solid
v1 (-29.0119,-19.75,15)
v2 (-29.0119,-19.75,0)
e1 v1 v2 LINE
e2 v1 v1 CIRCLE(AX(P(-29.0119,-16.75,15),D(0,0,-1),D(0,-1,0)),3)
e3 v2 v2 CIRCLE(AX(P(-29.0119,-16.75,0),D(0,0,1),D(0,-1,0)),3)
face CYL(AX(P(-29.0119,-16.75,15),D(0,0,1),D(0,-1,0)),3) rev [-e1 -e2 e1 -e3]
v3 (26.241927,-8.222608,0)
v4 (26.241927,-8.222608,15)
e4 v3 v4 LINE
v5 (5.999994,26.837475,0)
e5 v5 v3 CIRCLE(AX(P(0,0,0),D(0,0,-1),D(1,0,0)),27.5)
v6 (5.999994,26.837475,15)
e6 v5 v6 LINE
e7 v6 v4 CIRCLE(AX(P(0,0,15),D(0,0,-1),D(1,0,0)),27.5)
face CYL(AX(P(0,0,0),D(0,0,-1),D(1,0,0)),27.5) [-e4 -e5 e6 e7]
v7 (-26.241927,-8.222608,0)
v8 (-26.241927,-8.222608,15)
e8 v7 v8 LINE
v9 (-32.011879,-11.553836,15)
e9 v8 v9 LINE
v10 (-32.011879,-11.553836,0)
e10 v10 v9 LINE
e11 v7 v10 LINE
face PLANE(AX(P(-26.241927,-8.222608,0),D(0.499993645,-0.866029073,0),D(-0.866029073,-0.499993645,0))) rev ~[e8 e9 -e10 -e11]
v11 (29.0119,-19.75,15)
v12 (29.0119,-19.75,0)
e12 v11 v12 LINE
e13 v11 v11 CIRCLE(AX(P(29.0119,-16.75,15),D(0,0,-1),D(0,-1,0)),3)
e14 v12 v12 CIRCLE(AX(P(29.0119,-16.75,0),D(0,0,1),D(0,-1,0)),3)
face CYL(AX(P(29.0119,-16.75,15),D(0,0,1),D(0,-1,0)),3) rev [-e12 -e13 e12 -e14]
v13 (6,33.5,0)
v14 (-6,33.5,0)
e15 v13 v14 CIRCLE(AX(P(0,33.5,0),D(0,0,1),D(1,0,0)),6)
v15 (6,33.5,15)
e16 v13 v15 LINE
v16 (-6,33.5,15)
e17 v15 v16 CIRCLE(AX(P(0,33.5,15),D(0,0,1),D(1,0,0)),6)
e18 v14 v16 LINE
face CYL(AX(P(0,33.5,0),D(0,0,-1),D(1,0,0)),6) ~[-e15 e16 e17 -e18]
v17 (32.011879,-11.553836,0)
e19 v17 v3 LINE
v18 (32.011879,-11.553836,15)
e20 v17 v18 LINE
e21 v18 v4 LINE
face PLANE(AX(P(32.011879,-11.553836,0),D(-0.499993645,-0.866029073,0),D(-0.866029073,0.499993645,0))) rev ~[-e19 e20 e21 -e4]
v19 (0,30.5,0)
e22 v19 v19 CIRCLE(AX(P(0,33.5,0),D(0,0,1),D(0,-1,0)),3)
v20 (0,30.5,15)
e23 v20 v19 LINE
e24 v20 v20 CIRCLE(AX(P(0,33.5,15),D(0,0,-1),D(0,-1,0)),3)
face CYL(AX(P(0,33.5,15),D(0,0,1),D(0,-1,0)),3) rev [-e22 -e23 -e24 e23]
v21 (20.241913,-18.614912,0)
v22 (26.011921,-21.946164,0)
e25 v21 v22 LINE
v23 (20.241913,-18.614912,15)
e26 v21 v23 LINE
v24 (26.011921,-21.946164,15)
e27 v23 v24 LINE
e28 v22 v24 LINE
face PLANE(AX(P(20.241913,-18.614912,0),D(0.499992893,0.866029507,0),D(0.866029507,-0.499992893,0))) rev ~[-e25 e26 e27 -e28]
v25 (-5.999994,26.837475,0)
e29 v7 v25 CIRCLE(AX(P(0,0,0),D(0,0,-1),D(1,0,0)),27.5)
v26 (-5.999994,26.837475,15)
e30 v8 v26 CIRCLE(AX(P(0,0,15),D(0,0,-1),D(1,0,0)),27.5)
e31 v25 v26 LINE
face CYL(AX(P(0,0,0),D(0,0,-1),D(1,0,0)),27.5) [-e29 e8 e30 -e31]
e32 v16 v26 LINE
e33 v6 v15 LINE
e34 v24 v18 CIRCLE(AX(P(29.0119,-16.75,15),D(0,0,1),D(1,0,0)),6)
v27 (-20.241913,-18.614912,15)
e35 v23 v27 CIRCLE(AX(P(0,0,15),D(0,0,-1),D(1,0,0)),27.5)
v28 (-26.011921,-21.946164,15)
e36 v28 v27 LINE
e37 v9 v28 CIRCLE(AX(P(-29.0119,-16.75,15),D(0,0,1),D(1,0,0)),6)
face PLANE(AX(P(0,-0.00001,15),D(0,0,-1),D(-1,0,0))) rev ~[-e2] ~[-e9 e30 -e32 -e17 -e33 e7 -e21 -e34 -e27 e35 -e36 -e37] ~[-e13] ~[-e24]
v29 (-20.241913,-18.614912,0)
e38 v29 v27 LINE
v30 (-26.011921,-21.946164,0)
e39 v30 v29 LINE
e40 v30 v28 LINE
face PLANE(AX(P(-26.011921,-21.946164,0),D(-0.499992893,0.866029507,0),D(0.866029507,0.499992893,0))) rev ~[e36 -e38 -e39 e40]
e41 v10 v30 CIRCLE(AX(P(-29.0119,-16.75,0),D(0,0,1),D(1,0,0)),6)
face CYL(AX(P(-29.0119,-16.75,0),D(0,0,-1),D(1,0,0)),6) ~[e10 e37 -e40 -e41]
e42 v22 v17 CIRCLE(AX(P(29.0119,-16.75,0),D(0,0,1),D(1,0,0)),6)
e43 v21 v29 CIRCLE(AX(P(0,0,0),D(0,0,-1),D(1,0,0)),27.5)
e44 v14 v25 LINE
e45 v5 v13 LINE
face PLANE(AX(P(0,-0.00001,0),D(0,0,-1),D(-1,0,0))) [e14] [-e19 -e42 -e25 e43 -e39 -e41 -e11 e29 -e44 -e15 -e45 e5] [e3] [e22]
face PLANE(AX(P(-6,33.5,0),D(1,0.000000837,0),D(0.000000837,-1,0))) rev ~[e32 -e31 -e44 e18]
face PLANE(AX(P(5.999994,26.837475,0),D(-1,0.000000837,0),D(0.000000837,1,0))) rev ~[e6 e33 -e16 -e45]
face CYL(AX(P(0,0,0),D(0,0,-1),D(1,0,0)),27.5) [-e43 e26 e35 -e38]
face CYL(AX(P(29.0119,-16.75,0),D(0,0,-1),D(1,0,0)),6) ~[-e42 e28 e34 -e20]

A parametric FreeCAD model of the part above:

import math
import FreeCAD as App
import Part
import Sketcher
Q = App.Units.Quantity

doc = App.newDocument("Part")
body = doc.addObject("PartDesign::Body", "Body")

sketch1 = body.newObject("Sketcher::SketchObject", "Sketch")
sketch1.AttachmentSupport = (doc.getObject("XY_Plane"), [""])
sketch1.MapMode = "FlatFace"
sketch1.addGeometry(Part.ArcOfCircle(Part.Circle(App.Vector(0, 0, 0), App.Vector(0, 0, 1), 28), math.radians(103), math.radians(197)), False)
sketch1.addGeometry(Part.LineSegment(App.Vector(-26, -8, 0), App.Vector(-32, -12, 0)), False)
sketch1.addGeometry(Part.ArcOfCircle(Part.Circle(App.Vector(-29, -17, 0), App.Vector(0, 0, 1), 6), math.radians(120), math.radians(300)), False)
sketch1.addGeometry(Part.LineSegment(App.Vector(-26, -22, 0), App.Vector(-20, -19, 0)), False)
sketch1.addGeometry(Part.ArcOfCircle(Part.Circle(App.Vector(0, 0, 0), App.Vector(0, 0, 1), 27), math.radians(-137), math.radians(-43)), False)
sketch1.addGeometry(Part.LineSegment(App.Vector(20, -19, 0), App.Vector(26, -22, 0)), False)
sketch1.addGeometry(Part.ArcOfCircle(Part.Circle(App.Vector(29, -17, 0), App.Vector(0, 0, 1), 6), math.radians(-120), math.radians(60)), False)
sketch1.addGeometry(Part.LineSegment(App.Vector(32, -12, 0), App.Vector(26, -8, 0)), False)
sketch1.addGeometry(Part.ArcOfCircle(Part.Circle(App.Vector(0, 0, 0), App.Vector(0, 0, 1), 27), math.radians(-17), math.radians(77)), False)
sketch1.addGeometry(Part.LineSegment(App.Vector(6, 27, 0), App.Vector(6, 34, 0)), False)
sketch1.addGeometry(Part.ArcOfCircle(Part.Circle(App.Vector(0, 34, 0), App.Vector(0, 0, 1), 6), math.radians(0), math.radians(180)), False)
sketch1.addGeometry(Part.LineSegment(App.Vector(-6, 34, 0), App.Vector(-6, 27, 0)), False)
sketch1.addConstraint(Sketcher.Constraint("Coincident", 0, 2, 1, 1))
sketch1.addConstraint(Sketcher.Constraint("Tangent", 1, 2, 2, 1))
sketch1.addConstraint(Sketcher.Constraint("Tangent", 2, 2, 3, 1))
sketch1.addConstraint(Sketcher.Constraint("Coincident", 3, 2, 4, 1))
sketch1.addConstraint(Sketcher.Constraint("Coincident", 4, 2, 5, 1))
sketch1.addConstraint(Sketcher.Constraint("Tangent", 5, 2, 6, 1))
sketch1.addConstraint(Sketcher.Constraint("Tangent", 6, 2, 7, 1))
sketch1.addConstraint(Sketcher.Constraint("Coincident", 7, 2, 8, 1))
sketch1.addConstraint(Sketcher.Constraint("Coincident", 8, 2, 9, 1))
sketch1.addConstraint(Sketcher.Constraint("Tangent", 9, 2, 10, 1))
sketch1.addConstraint(Sketcher.Constraint("Tangent", 10, 2, 11, 1))
sketch1.addConstraint(Sketcher.Constraint("Coincident", 11, 2, 0, 1))
sketch1.addConstraint(Sketcher.Constraint("Vertical", 9))
sketch1.addConstraint(Sketcher.Constraint("Vertical", 11))
sketch1.addConstraint(Sketcher.Constraint("Coincident", 0, 3, -1, 1))
sketch1.addConstraint(Sketcher.Constraint("Coincident", 4, 3, -1, 1))
sketch1.addConstraint(Sketcher.Constraint("Coincident", 8, 3, -1, 1))
sketch1.addConstraint(Sketcher.Constraint("Equal", 0, 4))
sketch1.addConstraint(Sketcher.Constraint("Equal", 2, 6))
sketch1.addConstraint(Sketcher.Constraint("Equal", 4, 8))
sketch1.addConstraint(Sketcher.Constraint("Equal", 6, 10))
sketch1.addConstraint(Sketcher.Constraint("Symmetric", 2, 3, 6, 3, -2))
sketch1.addConstraint(Sketcher.Constraint("PointOnObject", 10, 3, -2))
sketch1.addConstraint(Sketcher.Constraint("Parallel", 1, 3))
sketch1.addConstraint(Sketcher.Constraint("Parallel", 5, 7))
sketch1.addConstraint(Sketcher.Constraint("Horizontal", 3, 2, 4, 2))
sketch1.addConstraint(Sketcher.Constraint("Equal", 1, 3))
sketch1.addConstraint(Sketcher.Constraint("Radius", 2, 6.0))
sketch1.addConstraint(Sketcher.Constraint("Radius", 0, 27.5))
sketch1.addConstraint(Sketcher.Constraint("Angle", 1, Q("-150.0008 deg")))
sketch1.addConstraint(Sketcher.Constraint("DistanceY", -1, 1, 10, 3, 33.5))
sketch1.addConstraint(Sketcher.Constraint("DistanceY", 2, 3, -1, 1, 16.75))
pad1 = body.newObject("PartDesign::Pad", "Pad")
pad1.Profile = sketch1
pad1.Length = 15

sketch2 = body.newObject("Sketcher::SketchObject", "Sketch001")
sketch2.AttachmentSupport = (doc.getObject("XY_Plane"), [""])
sketch2.MapMode = "FlatFace"
sketch2.AttachmentOffset = App.Placement(App.Vector(0, 0, 15), App.Rotation())
sketch2.addGeometry(Part.Circle(App.Vector(29, -16.8, 0), App.Vector(0, 0, 1), 3), False)
sketch2.addConstraint(Sketcher.Constraint("Diameter", 0, 6.0))
sketch2.addConstraint(Sketcher.Constraint("DistanceY", 0, 3, -1, 1, 16.75))
sketch2.addConstraint(Sketcher.Constraint("DistanceX", -1, 1, 0, 3, 29.012))
doc.recompute()
hole = body.newObject("PartDesign::Hole", "Hole")
hole.Profile = sketch2
hole.ThreadType = "None"
hole.Diameter = 6
hole.DepthType = "ThroughAll"

sketch3 = body.newObject("Sketcher::SketchObject", "Sketch002")
sketch3.AttachmentSupport = (doc.getObject("XY_Plane"), [""])
sketch3.MapMode = "FlatFace"
sketch3.AttachmentOffset = App.Placement(App.Vector(0, 0, 15), App.Rotation())
sketch3.addGeometry(Part.Circle(App.Vector(-29, -16.8, 0), App.Vector(0, 0, 1), 3), False)
sketch3.addConstraint(Sketcher.Constraint("Diameter", 0, 6.0))
sketch3.addConstraint(Sketcher.Constraint("DistanceY", 0, 3, -1, 1, 16.75))
sketch3.addConstraint(Sketcher.Constraint("DistanceX", 0, 3, -1, 1, 29.012))
doc.recompute()
hole2 = body.newObject("PartDesign::Hole", "Hole001")
hole2.Profile = sketch3
hole2.ThreadType = "None"
hole2.Diameter = 6
hole2.DepthType = "ThroughAll"

sketch4 = body.newObject("Sketcher::SketchObject", "Sketch003")
sketch4.AttachmentSupport = (doc.getObject("XY_Plane"), [""])
sketch4.MapMode = "FlatFace"
sketch4.AttachmentOffset = App.Placement(App.Vector(0, 0, 15), App.Rotation())
sketch4.addGeometry(Part.Circle(App.Vector(0, 33.5, 0), App.Vector(0, 0, 1), 3), False)
sketch4.addConstraint(Sketcher.Constraint("PointOnObject", 0, 3, -2))
sketch4.addConstraint(Sketcher.Constraint("Diameter", 0, 6.0))
sketch4.addConstraint(Sketcher.Constraint("DistanceY", -1, 1, 0, 3, 33.5))
doc.recompute()
hole3 = body.newObject("PartDesign::Hole", "Hole002")
hole3.Profile = sketch4
hole3.ThreadType = "None"
hole3.Diameter = 6
hole3.DepthType = "ThroughAll"

doc.recompute()
